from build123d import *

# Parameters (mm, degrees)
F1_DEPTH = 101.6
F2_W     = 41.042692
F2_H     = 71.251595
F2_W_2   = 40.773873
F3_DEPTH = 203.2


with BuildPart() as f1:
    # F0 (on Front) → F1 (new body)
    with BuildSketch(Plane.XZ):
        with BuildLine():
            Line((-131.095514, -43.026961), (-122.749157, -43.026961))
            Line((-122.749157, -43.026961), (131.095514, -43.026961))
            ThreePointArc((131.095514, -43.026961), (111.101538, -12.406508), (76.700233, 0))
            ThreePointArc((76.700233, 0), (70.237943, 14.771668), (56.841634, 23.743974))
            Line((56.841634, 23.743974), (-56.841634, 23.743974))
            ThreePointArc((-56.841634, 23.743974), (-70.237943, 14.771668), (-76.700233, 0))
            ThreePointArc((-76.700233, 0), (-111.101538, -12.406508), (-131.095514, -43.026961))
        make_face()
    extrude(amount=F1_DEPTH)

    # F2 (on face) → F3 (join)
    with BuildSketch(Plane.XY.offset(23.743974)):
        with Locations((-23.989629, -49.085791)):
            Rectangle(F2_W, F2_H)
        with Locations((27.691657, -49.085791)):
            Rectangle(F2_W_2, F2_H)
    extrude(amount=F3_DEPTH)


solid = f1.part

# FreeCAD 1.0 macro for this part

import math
import FreeCAD as App
import Part
import Sketcher

V = App.Vector
Q = App.Units.Quantity

doc = App.newDocument("Part")
body = doc.addObject("PartDesign::Body", "Body")

# Sketch on XZ plane
sketch1 = body.newObject("Sketcher::SketchObject", "Sketch")
sketch1.AttachmentSupport = (doc.getObject("XZ_Plane"), [""])
sketch1.MapMode = "FlatFace"
sketch1.addGeometry([
    Part.LineSegment(V(-131, -43, 0), V(131, -43, 0)),  # 0
    Part.ArcOfCircle(Part.Circle(V(75, -58, 0), V(0, 0, 1), 58), math.radians(15), math.radians(89)),  # 1
    Part.ArcOfCircle(Part.Circle(V(48, -4, 0), V(0, 0, 1), 29), math.radians(7), math.radians(72)),  # 2
    Part.LineSegment(V(57, 24, 0), V(-57, 24, 0)),  # 3
    Part.ArcOfCircle(Part.Circle(V(-48, -4, 0), V(0, 0, 1), 29), math.radians(108), math.radians(173)),  # 4
    Part.ArcOfCircle(Part.Circle(V(-75, -58, 0), V(0, 0, 1), 58), math.radians(91), math.radians(165)),  # 5
], False)
sketch1.addConstraint([
    Sketcher.Constraint("Coincident", 0, 2, 1, 1),
    Sketcher.Constraint("Coincident", 1, 2, 2, 1),
    Sketcher.Constraint("Coincident", 2, 2, 3, 1),
    Sketcher.Constraint("Coincident", 3, 2, 4, 1),
    Sketcher.Constraint("Coincident", 4, 2, 5, 1),
    Sketcher.Constraint("Coincident", 5, 2, 0, 1),
    Sketcher.Constraint("Horizontal", 0),
    Sketcher.Constraint("Horizontal", 3),
    Sketcher.Constraint("Equal", 2, 4),
    Sketcher.Constraint("Equal", 1, 5),
    Sketcher.Constraint("Symmetric", 1, 2, 4, 2, -1, 1),
    Sketcher.Constraint("Symmetric", 2, 3, 4, 3, -2),
    Sketcher.Constraint("Horizontal", 1, 3, 5, 3),
    Sketcher.Constraint("Radius", 1, Q("57.587622 mm")),
    Sketcher.Constraint("Radius", 2, Q("28.758484 mm")),
    Sketcher.Constraint("DistanceX", 0, 1, 0, 2, Q("262.191028 mm")),
    Sketcher.Constraint("DistanceX", 3, 2, 3, 1, Q("113.683268 mm")),
    Sketcher.Constraint("DistanceX", 2, 2, 1, 2, Q("19.858599 mm")),
    Sketcher.Constraint("DistanceY", 2, 3, -1, 1, Q("3.678489 mm")),
    Sketcher.Constraint("DistanceY", 0, 2, -1, 1, Q("43.026961 mm")),
])
pad1 = body.newObject("PartDesign::Pad", "Pad")
pad1.Profile = sketch1
pad1.Length = Q("4 in")

# Sketch on XY plane
sketch2 = body.newObject("Sketcher::SketchObject", "Sketch001")
sketch2.AttachmentSupport = (doc.getObject("XY_Plane"), [""])
sketch2.MapMode = "FlatFace"
sketch2.AttachmentOffset = App.Placement(V(0, 0, 23.743974), App.Rotation())
sketch2.addGeometry([
    Part.LineSegment(V(-45, -13, 0), V(-45, -85, 0)),  # 0
    Part.LineSegment(V(-45, -85, 0), V(-3, -85, 0)),  # 1
    Part.LineSegment(V(-3, -85, 0), V(-3, -13, 0)),  # 2
    Part.LineSegment(V(-3, -13, 0), V(-45, -13, 0)),  # 3
    Part.LineSegment(V(7, -13, 0), V(7, -85, 0)),  # 4
    Part.LineSegment(V(7, -85, 0), V(48, -85, 0)),  # 5
    Part.LineSegment(V(48, -85, 0), V(48, -13, 0)),  # 6
    Part.LineSegment(V(48, -13, 0), V(7, -13, 0)),  # 7
], False)
sketch2.addConstraint([
    Sketcher.Constraint("Coincident", 0, 2, 1, 1),
    Sketcher.Constraint("Coincident", 1, 2, 2, 1),
    Sketcher.Constraint("Coincident", 2, 2, 3, 1),
    Sketcher.Constraint("Coincident", 3, 2, 0, 1),
    Sketcher.Constraint("Coincident", 4, 2, 5, 1),
    Sketcher.Constraint("Coincident", 5, 2, 6, 1),
    Sketcher.Constraint("Coincident", 6, 2, 7, 1),
    Sketcher.Constraint("Coincident", 7, 2, 4, 1),
    Sketcher.Constraint("Vertical", 0),
    Sketcher.Constraint("Horizontal", 1),
    Sketcher.Constraint("Vertical", 2),
    Sketcher.Constraint("Horizontal", 3),
    Sketcher.Constraint("Vertical", 4),
    Sketcher.Constraint("Horizontal", 5),
    Sketcher.Constraint("Vertical", 6),
    Sketcher.Constraint("Horizontal", 7),
    Sketcher.Constraint("Horizontal", 1, 2, 4, 2),
    Sketcher.Constraint("Horizontal", 3, 2, 6, 2),
    Sketcher.Constraint("DistanceX", 1, 1, 1, 2, Q("41.042692 mm")),
    Sketcher.Constraint("DistanceX", 5, 1, 5, 2, Q("40.773873 mm")),
    Sketcher.Constraint("DistanceY", 0, 2, 0, 1, Q("71.251595 mm")),
    Sketcher.Constraint("DistanceY", 0, 2, -1, 1, Q("84.711589 mm")),
    Sketcher.Constraint("DistanceX", -1, 1, 4, 2, Q("7.304721 mm")),
    Sketcher.Constraint("DistanceX", 0, 2, 5, 2, Q("92.589568 mm")),
])
pad2 = body.newObject("PartDesign::Pad", "Pad001")
pad2.Profile = sketch2
pad2.Length = Q("8 in")

doc.recompute()
